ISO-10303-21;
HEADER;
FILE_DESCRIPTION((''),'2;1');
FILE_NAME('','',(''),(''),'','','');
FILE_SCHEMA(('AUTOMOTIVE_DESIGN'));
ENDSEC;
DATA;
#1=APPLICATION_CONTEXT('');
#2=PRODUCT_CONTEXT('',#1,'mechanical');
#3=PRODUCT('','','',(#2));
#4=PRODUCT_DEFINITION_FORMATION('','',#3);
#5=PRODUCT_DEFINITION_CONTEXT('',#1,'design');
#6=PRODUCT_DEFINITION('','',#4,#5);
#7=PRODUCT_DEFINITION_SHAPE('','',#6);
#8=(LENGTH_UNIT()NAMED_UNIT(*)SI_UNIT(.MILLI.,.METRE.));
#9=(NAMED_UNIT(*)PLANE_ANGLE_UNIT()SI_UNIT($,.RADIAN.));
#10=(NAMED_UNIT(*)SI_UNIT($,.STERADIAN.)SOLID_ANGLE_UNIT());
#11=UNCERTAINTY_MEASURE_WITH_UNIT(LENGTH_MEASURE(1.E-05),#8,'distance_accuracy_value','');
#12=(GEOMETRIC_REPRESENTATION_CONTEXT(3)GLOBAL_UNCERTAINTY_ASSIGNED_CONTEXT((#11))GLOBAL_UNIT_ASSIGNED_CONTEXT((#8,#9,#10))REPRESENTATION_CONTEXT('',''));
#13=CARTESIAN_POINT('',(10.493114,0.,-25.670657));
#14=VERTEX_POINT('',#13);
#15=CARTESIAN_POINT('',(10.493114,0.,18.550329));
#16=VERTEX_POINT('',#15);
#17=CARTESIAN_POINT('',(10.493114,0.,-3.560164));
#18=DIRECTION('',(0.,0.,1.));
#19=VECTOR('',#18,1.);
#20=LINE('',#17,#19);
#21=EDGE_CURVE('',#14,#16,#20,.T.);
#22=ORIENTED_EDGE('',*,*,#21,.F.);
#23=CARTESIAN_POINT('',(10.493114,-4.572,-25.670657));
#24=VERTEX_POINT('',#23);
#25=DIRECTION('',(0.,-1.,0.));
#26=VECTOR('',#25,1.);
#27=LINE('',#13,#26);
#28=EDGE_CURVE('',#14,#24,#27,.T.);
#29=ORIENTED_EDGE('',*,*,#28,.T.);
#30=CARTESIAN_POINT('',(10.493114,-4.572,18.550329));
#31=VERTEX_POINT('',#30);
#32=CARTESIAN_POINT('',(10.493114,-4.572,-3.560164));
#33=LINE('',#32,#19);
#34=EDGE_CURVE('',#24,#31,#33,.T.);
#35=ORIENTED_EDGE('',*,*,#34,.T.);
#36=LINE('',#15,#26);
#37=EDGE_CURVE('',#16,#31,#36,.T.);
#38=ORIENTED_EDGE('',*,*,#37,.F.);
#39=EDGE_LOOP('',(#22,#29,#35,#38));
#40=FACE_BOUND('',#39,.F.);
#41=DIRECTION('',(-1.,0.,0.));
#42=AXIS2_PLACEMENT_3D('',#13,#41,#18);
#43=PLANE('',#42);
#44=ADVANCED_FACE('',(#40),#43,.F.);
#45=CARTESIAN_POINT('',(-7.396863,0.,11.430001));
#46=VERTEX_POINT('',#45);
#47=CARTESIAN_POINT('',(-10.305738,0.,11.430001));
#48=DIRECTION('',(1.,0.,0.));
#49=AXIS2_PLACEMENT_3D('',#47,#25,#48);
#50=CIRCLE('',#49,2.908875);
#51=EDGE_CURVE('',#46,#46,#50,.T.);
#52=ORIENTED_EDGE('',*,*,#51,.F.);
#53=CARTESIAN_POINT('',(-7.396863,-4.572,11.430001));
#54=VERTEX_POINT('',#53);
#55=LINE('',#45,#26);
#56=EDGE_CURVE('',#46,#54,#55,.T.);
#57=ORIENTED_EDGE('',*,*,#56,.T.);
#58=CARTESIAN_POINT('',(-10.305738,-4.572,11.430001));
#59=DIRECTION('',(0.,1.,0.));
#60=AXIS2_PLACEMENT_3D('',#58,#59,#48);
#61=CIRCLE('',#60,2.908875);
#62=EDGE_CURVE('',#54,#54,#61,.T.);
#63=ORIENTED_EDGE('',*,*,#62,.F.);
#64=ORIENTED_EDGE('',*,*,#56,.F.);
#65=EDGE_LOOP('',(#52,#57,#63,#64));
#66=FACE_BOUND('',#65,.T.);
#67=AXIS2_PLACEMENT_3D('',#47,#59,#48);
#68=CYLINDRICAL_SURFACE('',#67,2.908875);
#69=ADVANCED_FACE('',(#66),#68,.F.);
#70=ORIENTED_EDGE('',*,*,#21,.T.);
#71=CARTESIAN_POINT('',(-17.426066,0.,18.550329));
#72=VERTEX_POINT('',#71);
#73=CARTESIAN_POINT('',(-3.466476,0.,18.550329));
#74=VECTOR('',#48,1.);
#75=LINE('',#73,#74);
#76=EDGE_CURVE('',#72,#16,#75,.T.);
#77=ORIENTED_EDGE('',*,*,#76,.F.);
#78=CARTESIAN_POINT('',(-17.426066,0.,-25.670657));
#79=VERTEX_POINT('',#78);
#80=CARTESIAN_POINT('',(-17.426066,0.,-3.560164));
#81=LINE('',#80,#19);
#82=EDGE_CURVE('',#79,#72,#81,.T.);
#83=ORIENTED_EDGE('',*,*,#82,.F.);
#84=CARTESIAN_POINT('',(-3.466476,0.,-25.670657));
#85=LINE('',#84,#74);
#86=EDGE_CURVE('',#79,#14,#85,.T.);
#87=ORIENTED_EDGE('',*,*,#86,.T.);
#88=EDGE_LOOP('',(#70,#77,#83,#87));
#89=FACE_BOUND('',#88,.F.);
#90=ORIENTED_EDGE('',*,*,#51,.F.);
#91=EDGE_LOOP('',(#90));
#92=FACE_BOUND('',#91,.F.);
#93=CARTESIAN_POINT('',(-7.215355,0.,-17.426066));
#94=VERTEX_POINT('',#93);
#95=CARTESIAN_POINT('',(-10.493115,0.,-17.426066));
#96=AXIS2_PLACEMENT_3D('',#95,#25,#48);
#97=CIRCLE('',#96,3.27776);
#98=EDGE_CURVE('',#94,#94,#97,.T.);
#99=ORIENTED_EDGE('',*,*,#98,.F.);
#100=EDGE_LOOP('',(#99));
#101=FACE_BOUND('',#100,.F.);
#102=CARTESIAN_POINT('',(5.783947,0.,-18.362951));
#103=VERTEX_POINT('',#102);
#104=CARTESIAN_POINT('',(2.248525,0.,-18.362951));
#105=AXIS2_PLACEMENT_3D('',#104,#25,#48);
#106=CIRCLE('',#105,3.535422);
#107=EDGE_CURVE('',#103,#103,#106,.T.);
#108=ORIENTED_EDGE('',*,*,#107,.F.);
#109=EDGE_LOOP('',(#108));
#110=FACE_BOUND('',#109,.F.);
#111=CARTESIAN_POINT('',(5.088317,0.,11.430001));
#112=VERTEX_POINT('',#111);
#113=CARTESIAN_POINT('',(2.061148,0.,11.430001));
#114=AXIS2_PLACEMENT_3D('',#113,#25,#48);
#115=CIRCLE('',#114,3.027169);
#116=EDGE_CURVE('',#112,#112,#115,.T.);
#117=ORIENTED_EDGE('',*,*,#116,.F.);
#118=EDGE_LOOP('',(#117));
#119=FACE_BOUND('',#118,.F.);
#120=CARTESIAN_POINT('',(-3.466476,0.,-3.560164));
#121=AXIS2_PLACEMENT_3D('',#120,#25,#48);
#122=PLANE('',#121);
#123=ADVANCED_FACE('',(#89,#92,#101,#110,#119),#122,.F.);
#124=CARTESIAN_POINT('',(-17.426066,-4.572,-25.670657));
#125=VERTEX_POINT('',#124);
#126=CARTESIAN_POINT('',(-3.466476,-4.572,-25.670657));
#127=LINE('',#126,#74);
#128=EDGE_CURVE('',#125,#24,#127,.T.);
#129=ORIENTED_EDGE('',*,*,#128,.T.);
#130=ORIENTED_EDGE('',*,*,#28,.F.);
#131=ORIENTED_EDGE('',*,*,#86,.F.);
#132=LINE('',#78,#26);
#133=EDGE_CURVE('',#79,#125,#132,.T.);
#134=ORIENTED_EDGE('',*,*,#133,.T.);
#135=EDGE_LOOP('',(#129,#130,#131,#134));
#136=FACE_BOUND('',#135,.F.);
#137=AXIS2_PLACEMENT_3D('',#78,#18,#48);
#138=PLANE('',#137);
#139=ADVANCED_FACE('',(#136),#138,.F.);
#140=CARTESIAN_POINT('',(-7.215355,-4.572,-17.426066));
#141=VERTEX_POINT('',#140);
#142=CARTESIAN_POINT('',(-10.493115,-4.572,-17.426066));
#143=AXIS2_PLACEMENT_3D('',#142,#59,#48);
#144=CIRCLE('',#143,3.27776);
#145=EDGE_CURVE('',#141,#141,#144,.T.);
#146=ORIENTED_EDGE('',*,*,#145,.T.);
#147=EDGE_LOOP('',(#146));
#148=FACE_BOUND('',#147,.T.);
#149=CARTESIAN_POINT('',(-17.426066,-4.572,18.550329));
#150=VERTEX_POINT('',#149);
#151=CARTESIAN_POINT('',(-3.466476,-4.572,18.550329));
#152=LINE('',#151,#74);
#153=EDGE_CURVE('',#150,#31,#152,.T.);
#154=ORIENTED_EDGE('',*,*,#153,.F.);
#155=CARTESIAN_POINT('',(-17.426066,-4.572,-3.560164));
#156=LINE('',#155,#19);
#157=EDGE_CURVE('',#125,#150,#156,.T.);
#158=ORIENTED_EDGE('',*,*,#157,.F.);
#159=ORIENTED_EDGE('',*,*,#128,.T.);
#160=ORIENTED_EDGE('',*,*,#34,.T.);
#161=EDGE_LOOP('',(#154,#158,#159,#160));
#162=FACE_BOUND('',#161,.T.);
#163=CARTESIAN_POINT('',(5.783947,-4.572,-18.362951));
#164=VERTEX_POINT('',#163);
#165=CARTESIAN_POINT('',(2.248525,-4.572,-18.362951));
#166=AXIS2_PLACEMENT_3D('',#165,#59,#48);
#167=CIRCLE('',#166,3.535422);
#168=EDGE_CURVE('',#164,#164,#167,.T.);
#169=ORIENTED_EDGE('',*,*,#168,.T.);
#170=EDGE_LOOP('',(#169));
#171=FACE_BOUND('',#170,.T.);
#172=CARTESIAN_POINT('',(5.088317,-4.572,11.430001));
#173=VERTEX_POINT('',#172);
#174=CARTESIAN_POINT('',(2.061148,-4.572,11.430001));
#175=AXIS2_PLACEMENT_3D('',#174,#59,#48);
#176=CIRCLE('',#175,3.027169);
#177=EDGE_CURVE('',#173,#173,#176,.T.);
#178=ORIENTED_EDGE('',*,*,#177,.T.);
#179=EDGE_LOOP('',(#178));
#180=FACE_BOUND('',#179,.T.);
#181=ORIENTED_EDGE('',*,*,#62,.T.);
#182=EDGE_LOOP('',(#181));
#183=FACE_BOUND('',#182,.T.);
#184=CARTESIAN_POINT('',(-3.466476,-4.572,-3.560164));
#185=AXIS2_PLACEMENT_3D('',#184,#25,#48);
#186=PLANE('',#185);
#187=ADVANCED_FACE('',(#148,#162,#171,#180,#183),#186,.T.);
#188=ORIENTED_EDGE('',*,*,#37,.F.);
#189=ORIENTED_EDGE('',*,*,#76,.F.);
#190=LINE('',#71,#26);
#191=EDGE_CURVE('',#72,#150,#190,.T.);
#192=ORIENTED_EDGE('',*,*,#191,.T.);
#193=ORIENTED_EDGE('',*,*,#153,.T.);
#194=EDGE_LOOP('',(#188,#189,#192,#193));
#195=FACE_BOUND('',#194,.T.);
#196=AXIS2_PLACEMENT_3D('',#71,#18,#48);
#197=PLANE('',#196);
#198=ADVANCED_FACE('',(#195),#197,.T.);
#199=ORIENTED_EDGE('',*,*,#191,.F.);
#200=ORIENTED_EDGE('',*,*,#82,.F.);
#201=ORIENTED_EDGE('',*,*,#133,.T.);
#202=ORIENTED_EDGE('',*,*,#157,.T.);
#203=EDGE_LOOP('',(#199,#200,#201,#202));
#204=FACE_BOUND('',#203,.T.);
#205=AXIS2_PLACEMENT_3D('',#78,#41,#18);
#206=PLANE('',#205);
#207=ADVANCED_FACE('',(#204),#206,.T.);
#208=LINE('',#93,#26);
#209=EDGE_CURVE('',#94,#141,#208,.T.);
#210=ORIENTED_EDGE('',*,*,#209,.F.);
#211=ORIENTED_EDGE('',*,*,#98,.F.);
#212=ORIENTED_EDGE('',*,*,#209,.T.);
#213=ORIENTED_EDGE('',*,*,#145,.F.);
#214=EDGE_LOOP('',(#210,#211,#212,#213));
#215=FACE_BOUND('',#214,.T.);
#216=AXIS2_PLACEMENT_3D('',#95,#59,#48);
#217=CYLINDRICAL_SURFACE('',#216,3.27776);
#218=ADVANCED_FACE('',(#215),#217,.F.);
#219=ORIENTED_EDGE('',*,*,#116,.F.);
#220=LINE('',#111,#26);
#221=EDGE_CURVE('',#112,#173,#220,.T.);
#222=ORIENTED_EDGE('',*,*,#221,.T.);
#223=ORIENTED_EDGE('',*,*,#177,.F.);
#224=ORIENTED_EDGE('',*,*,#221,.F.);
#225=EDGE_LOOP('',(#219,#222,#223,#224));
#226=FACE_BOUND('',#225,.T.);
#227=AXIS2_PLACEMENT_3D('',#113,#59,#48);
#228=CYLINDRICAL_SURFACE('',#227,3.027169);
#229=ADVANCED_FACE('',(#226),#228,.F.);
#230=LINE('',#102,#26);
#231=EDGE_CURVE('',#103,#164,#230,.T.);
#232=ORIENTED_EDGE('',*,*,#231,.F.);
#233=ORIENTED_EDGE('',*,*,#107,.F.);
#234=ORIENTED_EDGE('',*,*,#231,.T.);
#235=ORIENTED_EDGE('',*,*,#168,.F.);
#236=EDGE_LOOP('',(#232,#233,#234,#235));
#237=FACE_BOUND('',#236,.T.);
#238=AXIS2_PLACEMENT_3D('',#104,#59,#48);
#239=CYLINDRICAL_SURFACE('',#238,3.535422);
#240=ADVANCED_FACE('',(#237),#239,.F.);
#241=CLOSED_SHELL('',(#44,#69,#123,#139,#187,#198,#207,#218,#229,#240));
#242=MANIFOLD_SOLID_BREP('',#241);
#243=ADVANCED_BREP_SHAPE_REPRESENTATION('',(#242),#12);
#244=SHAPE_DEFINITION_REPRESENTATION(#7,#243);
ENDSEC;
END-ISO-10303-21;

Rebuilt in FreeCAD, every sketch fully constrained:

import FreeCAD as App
import Part
import Sketcher

V = App.Vector
Q = App.Units.Quantity

doc = App.newDocument("Part")
params = doc.addObject("Spreadsheet::Sheet", "Params")
for row, (alias, value) in enumerate([
    ("pad1_length", "0.18 in"),
    ("pocket1_length", "1 in"),
], start=1):
    params.set(f"A{row}", alias)
    params.set(f"B{row}", "=" + value)
    params.setAlias(f"B{row}", alias)

body = doc.addObject("PartDesign::Body", "Body")

sketch1 = body.newObject("Sketcher::SketchObject", "Sketch")
sketch1.AttachmentSupport = (doc.getObject("XZ_Plane"), [""])
sketch1.MapMode = "FlatFace"
sketch1.addGeometry(Part.LineSegment(V(-17, 19, 0), V(-17, -26, 0)), False)
sketch1.addGeometry(Part.LineSegment(V(-17, -26, 0), V(10, -26, 0)), False)
sketch1.addGeometry(Part.LineSegment(V(10, -26, 0), V(10, 19, 0)), False)
sketch1.addGeometry(Part.LineSegment(V(10, 19, 0), V(-17, 19, 0)), False)
sketch1.addConstraint(Sketcher.Constraint("Coincident", 0, 2, 1, 1))
sketch1.addConstraint(Sketcher.Constraint("Coincident", 1, 2, 2, 1))
sketch1.addConstraint(Sketcher.Constraint("Coincident", 2, 2, 3, 1))
sketch1.addConstraint(Sketcher.Constraint("Coincident", 3, 2, 0, 1))
sketch1.addConstraint(Sketcher.Constraint("Vertical", 0))
sketch1.addConstraint(Sketcher.Constraint("Horizontal", 1))
sketch1.addConstraint(Sketcher.Constraint("Vertical", 2))
sketch1.addConstraint(Sketcher.Constraint("Horizontal", 3))
sketch1.addConstraint(Sketcher.Constraint("DistanceX", 1, 1, 1, 2, 27.91918))
sketch1.addConstraint(Sketcher.Constraint("DistanceY", 0, 2, 0, 1, 44.220986))
sketch1.addConstraint(Sketcher.Constraint("DistanceY", -1, 1, 2, 2, 18.550329))
sketch1.addConstraint(Sketcher.Constraint("DistanceX", 0, 2, -1, 1, 17.426066))
pad1 = body.newObject("PartDesign::Pad", "Pad")
pad1.Profile = sketch1
pad1.setExpression("Length", "Params.pad1_length")

sketch2 = body.newObject("Sketcher::SketchObject", "Sketch001")
sketch2.AttachmentSupport = (doc.getObject("XZ_Plane"), [""])
sketch2.MapMode = "FlatFace"
sketch2.addGeometry(Part.Circle(V(-10.3, 11.4, 0), V(0, 0, 1), 2.9), False)
sketch2.addGeometry(Part.Circle(V(2.2, -18.4, 0), V(0, 0, 1), 3.5), False)
sketch2.addGeometry(Part.Circle(V(-10.5, -17.4, 0), V(0, 0, 1), 3.3), False)
sketch2.addGeometry(Part.Circle(V(2.1, 11.4, 0), V(0, 0, 1), 3), False)
sketch2.addConstraint(Sketcher.Constraint("Horizontal", 0, 3, 3, 3))
sketch2.addConstraint(Sketcher.Constraint("DistanceY", -1, 1, 0, 3, Q("0.45 in")))
sketch2.addConstraint(Sketcher.Constraint("Diameter", 0, 5.81775))
sketch2.addConstraint(Sketcher.Constraint("Diameter", 2, 6.55552))
sketch2.addConstraint(Sketcher.Constraint("Diameter", 3, 6.054338))
sketch2.addConstraint(Sketcher.Constraint("Diameter", 1, 7.070844))
sketch2.addConstraint(Sketcher.Constraint("DistanceY", 1, 3, -1, 1, 18.362951))
sketch2.addConstraint(Sketcher.Constraint("DistanceX", -1, 1, 3, 3, 2.061148))
sketch2.addConstraint(Sketcher.Constraint("DistanceX", 2, 3, 1, 3, 12.74164))
sketch2.addConstraint(Sketcher.Constraint("DistanceX", 0, 3, -1, 1, 10.305738))
sketch2.addConstraint(Sketcher.Constraint("DistanceX", -1, 1, 1, 3, 2.248525))
sketch2.addConstraint(Sketcher.Constraint("DistanceY", 2, 3, -1, 1, 17.426066))
pocket1 = body.newObject("PartDesign::Pocket", "Pocket")
pocket1.Profile = sketch2
pocket1.setExpression("Length", "Params.pocket1_length")
pocket1.Reversed = True

doc.recompute()
